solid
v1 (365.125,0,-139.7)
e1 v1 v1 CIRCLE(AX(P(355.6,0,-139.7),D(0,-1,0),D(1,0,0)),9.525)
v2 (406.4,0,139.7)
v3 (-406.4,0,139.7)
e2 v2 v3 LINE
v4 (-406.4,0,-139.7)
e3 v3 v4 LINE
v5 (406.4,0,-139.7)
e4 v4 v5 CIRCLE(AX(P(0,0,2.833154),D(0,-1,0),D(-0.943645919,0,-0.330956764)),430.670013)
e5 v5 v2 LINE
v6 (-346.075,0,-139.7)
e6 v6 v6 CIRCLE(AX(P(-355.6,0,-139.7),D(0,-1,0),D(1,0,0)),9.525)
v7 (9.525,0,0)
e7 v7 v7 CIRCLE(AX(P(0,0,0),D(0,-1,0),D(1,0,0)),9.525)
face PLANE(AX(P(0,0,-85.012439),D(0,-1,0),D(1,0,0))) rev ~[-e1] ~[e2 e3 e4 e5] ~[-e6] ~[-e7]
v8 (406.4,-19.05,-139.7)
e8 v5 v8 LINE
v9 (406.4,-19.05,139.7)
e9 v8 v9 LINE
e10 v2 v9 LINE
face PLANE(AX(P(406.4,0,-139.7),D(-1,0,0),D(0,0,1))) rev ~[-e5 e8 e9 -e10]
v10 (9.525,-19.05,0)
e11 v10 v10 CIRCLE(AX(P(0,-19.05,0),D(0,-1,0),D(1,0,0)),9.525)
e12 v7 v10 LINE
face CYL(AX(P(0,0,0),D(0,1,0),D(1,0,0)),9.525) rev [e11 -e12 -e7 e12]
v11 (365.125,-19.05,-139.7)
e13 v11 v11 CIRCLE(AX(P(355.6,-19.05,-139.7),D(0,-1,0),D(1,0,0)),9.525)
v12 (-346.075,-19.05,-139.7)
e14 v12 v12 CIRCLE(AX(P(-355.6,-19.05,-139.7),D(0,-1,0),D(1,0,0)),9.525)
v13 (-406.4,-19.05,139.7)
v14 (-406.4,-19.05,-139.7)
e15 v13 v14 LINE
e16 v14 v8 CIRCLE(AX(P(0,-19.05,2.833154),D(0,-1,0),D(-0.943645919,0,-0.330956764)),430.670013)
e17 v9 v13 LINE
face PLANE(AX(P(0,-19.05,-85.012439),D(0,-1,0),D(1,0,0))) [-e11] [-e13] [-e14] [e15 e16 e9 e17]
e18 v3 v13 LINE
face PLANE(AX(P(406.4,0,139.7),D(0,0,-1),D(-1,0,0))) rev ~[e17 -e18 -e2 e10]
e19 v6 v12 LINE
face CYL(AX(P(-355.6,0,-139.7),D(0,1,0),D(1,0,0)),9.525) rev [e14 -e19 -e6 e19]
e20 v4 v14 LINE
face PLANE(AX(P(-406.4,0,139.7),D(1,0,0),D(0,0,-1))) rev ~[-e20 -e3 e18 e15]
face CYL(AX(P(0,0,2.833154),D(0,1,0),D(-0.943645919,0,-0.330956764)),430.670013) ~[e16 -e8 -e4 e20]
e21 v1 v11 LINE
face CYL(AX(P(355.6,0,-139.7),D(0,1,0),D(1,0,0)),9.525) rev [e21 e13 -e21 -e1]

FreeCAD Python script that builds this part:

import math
import FreeCAD as App
import Part
import Sketcher
from FreeCAD import Vector
Q = App.Units.Quantity

doc = App.newDocument("Part")
body = doc.addObject("PartDesign::Body", "Body")

# Sketch on XZ plane
sketch1 = doc.addObject("Sketcher::SketchObject", "Sketch")
body.addObject(sketch1)
sketch1.AttachmentSupport = (doc.XZ_Plane, [""])
sketch1.MapMode = "FlatFace"
sketch1.addGeometry([
    Part.LineSegment(Vector(406.4, 139.7, 0), Vector(-406.4, 139.7, 0)),  # 0
    Part.LineSegment(Vector(-406.4, 139.7, 0), Vector(-406.4, -139.7, 0)),  # 1
    Part.ArcOfCircle(Part.Circle(Vector(0, 2.833154, 0), Vector(0, 0, 1), 430.670013), math.radians(-160.673143), math.radians(-19.326857)),  # 2
    Part.LineSegment(Vector(406.4, -139.7, 0), Vector(406.4, 139.7, 0)),  # 3
    Part.Circle(Vector(-355.6, -139.7, 0), Vector(0, 0, 1), 9.525),  # 4
    Part.Circle(Vector(355.6, -139.7, 0), Vector(0, 0, 1), 9.525),  # 5
    Part.Circle(Vector(0, 0, 0), Vector(0, 0, 1), 9.525),  # 6
], False)
sketch1.addConstraint([
    Sketcher.Constraint("Coincident", 0, 2, 1, 1),
    Sketcher.Constraint("Coincident", 1, 2, 2, 1),
    Sketcher.Constraint("Coincident", 2, 2, 3, 1),
    Sketcher.Constraint("Coincident", 3, 2, 0, 1),
    Sketcher.Constraint("Horizontal", 0),
    Sketcher.Constraint("Vertical", 1),
    Sketcher.Constraint("Vertical", 3),
    Sketcher.Constraint("Coincident", 6, 3, -1, 1),
    Sketcher.Constraint("Equal", 4, 5),
    Sketcher.Constraint("Equal", 5, 6),
    Sketcher.Constraint("Symmetric", 0, 2, 2, 2, -1, 1),
    Sketcher.Constraint("Symmetric", 4, 3, 5, 3, -2),
    Sketcher.Constraint("PointOnObject", 2, 3, -2),
    Sketcher.Constraint("Horizontal", 5, 3, 1, 2),
    Sketcher.Constraint("Diameter", 4, Q("0.75 in")),
    Sketcher.Constraint("DistanceX", 0, 2, 0, 1, Q("32 in")),
    Sketcher.Constraint("DistanceY", 1, 2, 1, 1, Q("11 in")),
    Sketcher.Constraint("DistanceX", 4, 3, -1, 1, Q("14 in")),
    Sketcher.Constraint("Radius", 2, Q("430.670013 mm")),
])
pad1 = doc.addObject("PartDesign::Pad", "Pad")
body.addObject(pad1)
pad1.Profile = sketch1
pad1.Length = Q("0.75 in")

doc.recompute()
